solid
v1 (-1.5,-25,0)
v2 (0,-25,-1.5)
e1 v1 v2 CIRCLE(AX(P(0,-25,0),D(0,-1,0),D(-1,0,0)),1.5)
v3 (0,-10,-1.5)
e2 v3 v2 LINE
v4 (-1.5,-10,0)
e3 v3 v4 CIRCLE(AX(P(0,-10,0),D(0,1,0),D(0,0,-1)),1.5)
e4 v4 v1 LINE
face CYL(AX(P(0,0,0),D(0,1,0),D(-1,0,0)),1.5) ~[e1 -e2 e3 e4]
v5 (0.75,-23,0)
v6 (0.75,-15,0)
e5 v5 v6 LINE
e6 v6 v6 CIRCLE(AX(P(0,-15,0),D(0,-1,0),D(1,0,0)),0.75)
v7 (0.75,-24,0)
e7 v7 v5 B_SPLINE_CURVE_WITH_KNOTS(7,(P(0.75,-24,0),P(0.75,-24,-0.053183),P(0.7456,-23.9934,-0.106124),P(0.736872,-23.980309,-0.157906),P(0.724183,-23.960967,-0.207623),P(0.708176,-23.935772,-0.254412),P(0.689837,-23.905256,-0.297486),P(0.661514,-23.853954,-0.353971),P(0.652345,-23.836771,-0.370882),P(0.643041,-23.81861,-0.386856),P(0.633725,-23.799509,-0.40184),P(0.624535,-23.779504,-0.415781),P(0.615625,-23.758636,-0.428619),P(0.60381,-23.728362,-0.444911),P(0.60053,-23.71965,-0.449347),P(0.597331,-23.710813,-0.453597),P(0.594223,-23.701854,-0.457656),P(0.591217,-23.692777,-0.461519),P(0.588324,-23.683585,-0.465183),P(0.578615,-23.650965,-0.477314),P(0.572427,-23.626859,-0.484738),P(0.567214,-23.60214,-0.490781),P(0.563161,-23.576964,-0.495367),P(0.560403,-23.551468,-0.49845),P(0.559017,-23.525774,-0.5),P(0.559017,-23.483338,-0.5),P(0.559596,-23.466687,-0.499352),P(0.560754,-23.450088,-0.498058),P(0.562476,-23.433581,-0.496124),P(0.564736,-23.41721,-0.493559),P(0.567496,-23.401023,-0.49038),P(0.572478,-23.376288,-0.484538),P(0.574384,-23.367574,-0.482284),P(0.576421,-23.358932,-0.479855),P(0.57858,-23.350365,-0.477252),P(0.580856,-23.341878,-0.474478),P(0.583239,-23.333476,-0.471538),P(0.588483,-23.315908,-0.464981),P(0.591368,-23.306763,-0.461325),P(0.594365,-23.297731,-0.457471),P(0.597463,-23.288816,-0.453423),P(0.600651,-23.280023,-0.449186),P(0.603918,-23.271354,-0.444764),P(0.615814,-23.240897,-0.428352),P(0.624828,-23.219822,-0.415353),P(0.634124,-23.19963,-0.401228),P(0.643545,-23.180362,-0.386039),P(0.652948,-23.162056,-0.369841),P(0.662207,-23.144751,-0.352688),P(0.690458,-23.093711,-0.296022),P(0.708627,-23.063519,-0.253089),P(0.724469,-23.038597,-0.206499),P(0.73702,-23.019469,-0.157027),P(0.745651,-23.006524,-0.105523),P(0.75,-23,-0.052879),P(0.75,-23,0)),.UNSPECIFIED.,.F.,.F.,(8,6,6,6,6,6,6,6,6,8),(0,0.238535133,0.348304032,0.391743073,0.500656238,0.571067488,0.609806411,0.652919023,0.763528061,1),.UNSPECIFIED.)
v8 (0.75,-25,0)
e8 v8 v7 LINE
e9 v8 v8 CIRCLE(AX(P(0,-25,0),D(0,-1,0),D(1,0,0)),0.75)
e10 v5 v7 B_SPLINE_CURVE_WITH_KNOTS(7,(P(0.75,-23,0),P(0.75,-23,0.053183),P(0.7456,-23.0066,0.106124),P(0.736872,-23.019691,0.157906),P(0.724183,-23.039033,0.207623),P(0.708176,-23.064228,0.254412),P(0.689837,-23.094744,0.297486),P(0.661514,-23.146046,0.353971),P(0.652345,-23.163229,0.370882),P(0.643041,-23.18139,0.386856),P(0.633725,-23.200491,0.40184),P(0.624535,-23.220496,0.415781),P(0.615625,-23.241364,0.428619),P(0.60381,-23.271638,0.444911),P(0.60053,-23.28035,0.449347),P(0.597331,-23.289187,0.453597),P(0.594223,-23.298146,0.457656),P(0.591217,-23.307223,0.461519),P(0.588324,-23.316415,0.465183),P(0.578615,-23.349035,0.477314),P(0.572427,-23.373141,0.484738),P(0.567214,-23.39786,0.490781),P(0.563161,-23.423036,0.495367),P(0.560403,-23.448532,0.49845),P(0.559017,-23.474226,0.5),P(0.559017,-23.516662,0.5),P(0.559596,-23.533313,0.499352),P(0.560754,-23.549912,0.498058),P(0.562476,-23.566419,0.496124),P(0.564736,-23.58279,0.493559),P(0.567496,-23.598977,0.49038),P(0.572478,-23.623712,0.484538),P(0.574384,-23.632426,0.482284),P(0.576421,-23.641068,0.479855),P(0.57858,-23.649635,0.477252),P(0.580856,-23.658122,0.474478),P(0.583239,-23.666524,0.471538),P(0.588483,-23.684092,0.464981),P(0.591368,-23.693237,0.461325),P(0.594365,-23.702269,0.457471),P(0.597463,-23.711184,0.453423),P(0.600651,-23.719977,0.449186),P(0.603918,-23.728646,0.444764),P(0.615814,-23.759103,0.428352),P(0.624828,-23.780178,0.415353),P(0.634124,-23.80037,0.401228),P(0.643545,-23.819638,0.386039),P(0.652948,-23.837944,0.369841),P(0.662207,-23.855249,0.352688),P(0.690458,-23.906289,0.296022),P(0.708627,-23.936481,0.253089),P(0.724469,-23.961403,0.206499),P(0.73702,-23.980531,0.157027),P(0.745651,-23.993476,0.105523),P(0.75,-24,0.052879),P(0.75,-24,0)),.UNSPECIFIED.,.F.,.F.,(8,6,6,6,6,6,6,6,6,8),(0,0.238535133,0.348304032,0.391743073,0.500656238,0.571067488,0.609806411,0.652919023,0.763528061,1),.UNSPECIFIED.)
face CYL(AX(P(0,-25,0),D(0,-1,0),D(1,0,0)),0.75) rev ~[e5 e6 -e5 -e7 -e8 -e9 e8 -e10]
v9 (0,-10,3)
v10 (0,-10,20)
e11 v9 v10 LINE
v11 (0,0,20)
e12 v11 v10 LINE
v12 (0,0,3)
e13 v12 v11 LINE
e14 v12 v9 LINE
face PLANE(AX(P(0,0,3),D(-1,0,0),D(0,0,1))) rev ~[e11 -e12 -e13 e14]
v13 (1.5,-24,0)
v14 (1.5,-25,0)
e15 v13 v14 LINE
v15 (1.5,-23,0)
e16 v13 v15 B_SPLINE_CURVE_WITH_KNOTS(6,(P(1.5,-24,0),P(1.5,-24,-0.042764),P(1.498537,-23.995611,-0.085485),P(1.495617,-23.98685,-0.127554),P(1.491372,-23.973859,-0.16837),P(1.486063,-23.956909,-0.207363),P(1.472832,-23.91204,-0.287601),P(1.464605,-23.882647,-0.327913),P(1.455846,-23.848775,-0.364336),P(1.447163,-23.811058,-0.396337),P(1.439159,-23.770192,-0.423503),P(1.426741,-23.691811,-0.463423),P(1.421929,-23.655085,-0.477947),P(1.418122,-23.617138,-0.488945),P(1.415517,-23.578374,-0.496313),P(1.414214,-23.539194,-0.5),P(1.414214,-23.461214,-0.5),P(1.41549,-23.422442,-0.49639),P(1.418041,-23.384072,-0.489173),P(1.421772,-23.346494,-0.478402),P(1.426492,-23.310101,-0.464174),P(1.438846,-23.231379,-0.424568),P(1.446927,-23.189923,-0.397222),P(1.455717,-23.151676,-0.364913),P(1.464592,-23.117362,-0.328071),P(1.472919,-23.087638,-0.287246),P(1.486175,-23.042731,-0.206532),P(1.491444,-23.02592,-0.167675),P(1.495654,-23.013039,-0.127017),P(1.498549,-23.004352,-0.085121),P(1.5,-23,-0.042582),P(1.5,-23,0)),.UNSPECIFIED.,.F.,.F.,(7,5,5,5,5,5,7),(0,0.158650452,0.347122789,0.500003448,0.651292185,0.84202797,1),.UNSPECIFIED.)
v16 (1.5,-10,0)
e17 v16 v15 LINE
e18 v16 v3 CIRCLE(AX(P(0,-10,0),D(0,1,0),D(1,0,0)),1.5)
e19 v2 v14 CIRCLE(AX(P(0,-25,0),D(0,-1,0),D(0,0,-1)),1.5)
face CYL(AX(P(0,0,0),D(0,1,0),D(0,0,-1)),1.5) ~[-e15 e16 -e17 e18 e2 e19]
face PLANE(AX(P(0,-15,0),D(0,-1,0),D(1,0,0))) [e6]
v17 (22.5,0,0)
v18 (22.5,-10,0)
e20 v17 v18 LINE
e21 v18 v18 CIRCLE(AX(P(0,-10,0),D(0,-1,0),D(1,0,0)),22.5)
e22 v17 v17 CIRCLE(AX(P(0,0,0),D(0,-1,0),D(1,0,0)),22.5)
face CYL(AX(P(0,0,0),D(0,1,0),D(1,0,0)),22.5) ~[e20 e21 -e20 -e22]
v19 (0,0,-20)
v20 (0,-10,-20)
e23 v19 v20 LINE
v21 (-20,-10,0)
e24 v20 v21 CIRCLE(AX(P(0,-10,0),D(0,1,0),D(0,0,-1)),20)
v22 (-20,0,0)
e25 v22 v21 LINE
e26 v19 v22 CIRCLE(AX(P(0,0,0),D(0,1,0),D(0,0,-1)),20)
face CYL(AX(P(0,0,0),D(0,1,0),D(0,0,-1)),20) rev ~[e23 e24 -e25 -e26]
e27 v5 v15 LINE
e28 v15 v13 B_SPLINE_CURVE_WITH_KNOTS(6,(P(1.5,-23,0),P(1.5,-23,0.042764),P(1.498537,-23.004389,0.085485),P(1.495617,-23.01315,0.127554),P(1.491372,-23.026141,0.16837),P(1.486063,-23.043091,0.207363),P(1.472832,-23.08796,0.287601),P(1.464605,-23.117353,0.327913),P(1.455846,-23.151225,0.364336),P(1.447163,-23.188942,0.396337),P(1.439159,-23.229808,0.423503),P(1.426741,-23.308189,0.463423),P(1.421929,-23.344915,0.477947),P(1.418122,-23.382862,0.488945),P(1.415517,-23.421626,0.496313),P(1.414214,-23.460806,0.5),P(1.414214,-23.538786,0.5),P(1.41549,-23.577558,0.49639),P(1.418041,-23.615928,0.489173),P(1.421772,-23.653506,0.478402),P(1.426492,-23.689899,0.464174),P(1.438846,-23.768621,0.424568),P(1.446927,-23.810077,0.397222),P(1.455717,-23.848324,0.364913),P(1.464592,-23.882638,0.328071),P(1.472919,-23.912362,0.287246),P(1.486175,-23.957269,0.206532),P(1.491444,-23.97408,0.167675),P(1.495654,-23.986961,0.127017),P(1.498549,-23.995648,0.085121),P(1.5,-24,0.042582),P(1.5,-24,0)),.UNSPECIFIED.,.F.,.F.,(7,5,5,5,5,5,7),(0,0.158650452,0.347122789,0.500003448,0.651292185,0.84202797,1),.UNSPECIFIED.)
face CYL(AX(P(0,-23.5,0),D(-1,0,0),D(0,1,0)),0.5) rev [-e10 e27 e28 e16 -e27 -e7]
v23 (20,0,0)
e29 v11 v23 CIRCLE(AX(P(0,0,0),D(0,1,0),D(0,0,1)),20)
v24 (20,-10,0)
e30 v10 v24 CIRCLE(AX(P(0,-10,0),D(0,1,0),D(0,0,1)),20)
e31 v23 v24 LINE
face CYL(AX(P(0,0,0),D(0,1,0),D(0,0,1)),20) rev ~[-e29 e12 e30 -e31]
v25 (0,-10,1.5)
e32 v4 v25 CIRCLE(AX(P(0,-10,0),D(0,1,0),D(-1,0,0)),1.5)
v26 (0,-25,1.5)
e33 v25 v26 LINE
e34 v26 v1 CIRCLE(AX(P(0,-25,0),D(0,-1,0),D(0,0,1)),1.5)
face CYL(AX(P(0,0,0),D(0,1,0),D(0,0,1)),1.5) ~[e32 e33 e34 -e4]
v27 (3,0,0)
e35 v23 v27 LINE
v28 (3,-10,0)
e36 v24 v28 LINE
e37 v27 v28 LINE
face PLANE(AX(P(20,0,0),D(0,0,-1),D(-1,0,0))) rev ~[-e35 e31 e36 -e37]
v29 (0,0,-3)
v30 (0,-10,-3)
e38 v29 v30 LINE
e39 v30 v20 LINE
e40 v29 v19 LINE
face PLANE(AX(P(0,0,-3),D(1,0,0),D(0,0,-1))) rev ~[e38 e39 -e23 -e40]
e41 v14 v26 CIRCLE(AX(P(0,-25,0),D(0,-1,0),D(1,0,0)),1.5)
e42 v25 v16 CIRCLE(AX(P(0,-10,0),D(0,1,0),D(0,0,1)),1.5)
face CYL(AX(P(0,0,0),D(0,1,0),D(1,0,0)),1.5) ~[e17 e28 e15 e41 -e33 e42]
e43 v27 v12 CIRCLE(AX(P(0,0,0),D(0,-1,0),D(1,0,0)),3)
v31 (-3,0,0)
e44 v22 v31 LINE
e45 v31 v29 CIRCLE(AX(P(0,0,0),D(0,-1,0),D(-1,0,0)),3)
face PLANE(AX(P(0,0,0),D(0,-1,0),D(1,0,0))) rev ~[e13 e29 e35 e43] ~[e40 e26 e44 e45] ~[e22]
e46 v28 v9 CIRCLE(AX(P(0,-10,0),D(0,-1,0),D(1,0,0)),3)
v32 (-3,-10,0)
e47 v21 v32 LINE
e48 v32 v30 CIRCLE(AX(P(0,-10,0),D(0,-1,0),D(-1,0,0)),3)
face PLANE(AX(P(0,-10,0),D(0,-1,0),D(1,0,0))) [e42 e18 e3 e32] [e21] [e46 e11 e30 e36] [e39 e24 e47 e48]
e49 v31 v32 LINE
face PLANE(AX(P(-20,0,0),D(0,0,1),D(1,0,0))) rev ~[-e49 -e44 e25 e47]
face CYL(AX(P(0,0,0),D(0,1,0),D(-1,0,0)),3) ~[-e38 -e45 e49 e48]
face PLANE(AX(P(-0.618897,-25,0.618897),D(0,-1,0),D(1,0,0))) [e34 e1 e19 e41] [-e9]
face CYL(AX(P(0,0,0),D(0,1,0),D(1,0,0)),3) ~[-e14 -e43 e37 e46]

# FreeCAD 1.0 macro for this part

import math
import FreeCAD as App
import Part
import Sketcher

V = App.Vector
Q = App.Units.Quantity

doc = App.newDocument("Part")
body = doc.addObject("PartDesign::Body", "Body")

sketch1 = body.newObject("Sketcher::SketchObject", "Sketch")
sketch1.AttachmentSupport = (doc.getObject("XZ_Plane"), [""])
sketch1.MapMode = "FlatFace"
sketch1.addGeometry(Part.Circle(V(0, 0, 0), V(0, 0, 1), 22.5), False)
sketch1.addGeometry(Part.ArcOfCircle(Part.Circle(V(0, 0, 0), V(0, 0, 1), 20), math.radians(180), math.radians(270)), False)
sketch1.addGeometry(Part.LineSegment(V(-20, 0, 0), V(-3, 0, 0)), False)
sketch1.addGeometry(Part.ArcOfCircle(Part.Circle(V(0, 0, 0), V(0, 0, 1), 3), math.radians(180), math.radians(270)), False)
sketch1.addGeometry(Part.LineSegment(V(0, -3, 0), V(0, -20, 0)), False)
sketch1.addGeometry(Part.ArcOfCircle(Part.Circle(V(0, 0, 0), V(0, 0, 1), 3), math.radians(0), math.radians(90)), False)
sketch1.addGeometry(Part.LineSegment(V(0, 3, 0), V(0, 20, 0)), False)
sketch1.addGeometry(Part.ArcOfCircle(Part.Circle(V(0, 0, 0), V(0, 0, 1), 20), math.radians(0), math.radians(90)), False)
sketch1.addGeometry(Part.LineSegment(V(20, 0, 0), V(3, 0, 0)), False)
sketch1.addGeometry(Part.ArcOfCircle(Part.Circle(V(0, 0, 0), V(0, 0, 1), 1.5), math.radians(180), math.radians(270)), False)
sketch1.addGeometry(Part.ArcOfCircle(Part.Circle(V(0, 0, 0), V(0, 0, 1), 1.5), math.radians(90), math.radians(180)), False)
sketch1.addGeometry(Part.ArcOfCircle(Part.Circle(V(0, 0, 0), V(0, 0, 1), 1.5), math.radians(0), math.radians(90)), False)
sketch1.addGeometry(Part.ArcOfCircle(Part.Circle(V(0, 0, 0), V(0, 0, 1), 1.5), math.radians(-90), math.radians(0)), False)
sketch1.addConstraint(Sketcher.Constraint("Coincident", 1, 1, 2, 1))
sketch1.addConstraint(Sketcher.Constraint("Coincident", 2, 2, 3, 1))
sketch1.addConstraint(Sketcher.Constraint("Coincident", 3, 2, 4, 1))
sketch1.addConstraint(Sketcher.Constraint("Coincident", 4, 2, 1, 2))
sketch1.addConstraint(Sketcher.Constraint("Coincident", 5, 2, 6, 1))
sketch1.addConstraint(Sketcher.Constraint("Coincident", 6, 2, 7, 2))
sketch1.addConstraint(Sketcher.Constraint("Coincident", 7, 1, 8, 1))
sketch1.addConstraint(Sketcher.Constraint("Coincident", 8, 2, 5, 1))
sketch1.addConstraint(Sketcher.Constraint("Tangent", 9, 1, 10, 2))
sketch1.addConstraint(Sketcher.Constraint("Tangent", 10, 1, 11, 2))
sketch1.addConstraint(Sketcher.Constraint("Tangent", 11, 1, 12, 2))
sketch1.addConstraint(Sketcher.Constraint("Tangent", 12, 1, 9, 2))
sketch1.addConstraint(Sketcher.Constraint("Horizontal", 2))
sketch1.addConstraint(Sketcher.Constraint("Vertical", 4))
sketch1.addConstraint(Sketcher.Constraint("Vertical", 6))
sketch1.addConstraint(Sketcher.Constraint("Horizontal", 8))
sketch1.addConstraint(Sketcher.Constraint("Coincident", 0, 3, -1, 1))
sketch1.addConstraint(Sketcher.Constraint("Coincident", 1, 3, -1, 1))
sketch1.addConstraint(Sketcher.Constraint("Coincident", 3, 3, -1, 1))
sketch1.addConstraint(Sketcher.Constraint("Coincident", 5, 3, -1, 1))
sketch1.addConstraint(Sketcher.Constraint("Coincident", 7, 3, -1, 1))
sketch1.addConstraint(Sketcher.Constraint("Coincident", 9, 3, -1, 1))
sketch1.addConstraint(Sketcher.Constraint("Equal", 3, 5))
sketch1.addConstraint(Sketcher.Constraint("Equal", 1, 7))
sketch1.addConstraint(Sketcher.Constraint("Equal", 9, 10))
sketch1.addConstraint(Sketcher.Constraint("PointOnObject", 1, 1, -1))
sketch1.addConstraint(Sketcher.Constraint("PointOnObject", 3, 2, -2))
sketch1.addConstraint(Sketcher.Constraint("PointOnObject", 5, 2, -2))
sketch1.addConstraint(Sketcher.Constraint("PointOnObject", 7, 1, -1))
sketch1.addConstraint(Sketcher.Constraint("PointOnObject", 9, 1, -1))
sketch1.addConstraint(Sketcher.Constraint("PointOnObject", 10, 1, -2))
sketch1.addConstraint(Sketcher.Constraint("PointOnObject", 11, 1, -1))
sketch1.addConstraint(Sketcher.Constraint("PointOnObject", 12, 1, -2))
sketch1.addConstraint(Sketcher.Constraint("Diameter", 0, Q("45 mm")))
sketch1.addConstraint(Sketcher.Constraint("Radius", 1, Q("20 mm")))
sketch1.addConstraint(Sketcher.Constraint("Radius", 3, Q("3 mm")))
sketch1.addConstraint(Sketcher.Constraint("Radius", 9, Q("1.5 mm")))
pad1 = body.newObject("PartDesign::Pad", "Pad")
pad1.Profile = sketch1
pad1.Length = 10

sketch2 = body.newObject("Sketcher::SketchObject", "Sketch001")
sketch2.AttachmentSupport = (doc.getObject("XZ_Plane"), [""])
sketch2.MapMode = "FlatFace"
sketch2.addGeometry(Part.ArcOfCircle(Part.Circle(V(0, 0, 0), V(0, 0, 1), 1.5), math.radians(90), math.radians(180)), False)
sketch2.addGeometry(Part.ArcOfCircle(Part.Circle(V(0, 0, 0), V(0, 0, 1), 1.5), math.radians(180), math.radians(270)), False)
sketch2.addGeometry(Part.ArcOfCircle(Part.Circle(V(0, 0, 0), V(0, 0, 1), 1.5), math.radians(-90), math.radians(0)), False)
sketch2.addGeometry(Part.ArcOfCircle(Part.Circle(V(0, 0, 0), V(0, 0, 1), 1.5), math.radians(0), math.radians(90)), False)
sketch2.addConstraint(Sketcher.Constraint("Tangent", 0, 2, 1, 1))
sketch2.addConstraint(Sketcher.Constraint("Tangent", 1, 2, 2, 1))
sketch2.addConstraint(Sketcher.Constraint("Tangent", 2, 2, 3, 1))
sketch2.addConstraint(Sketcher.Constraint("Tangent", 3, 2, 0, 1))
sketch2.addConstraint(Sketcher.Constraint("Coincident", 0, 3, -1, 1))
sketch2.addConstraint(Sketcher.Constraint("Equal", 0, 1))
sketch2.addConstraint(Sketcher.Constraint("PointOnObject", 0, 2, -1))
sketch2.addConstraint(Sketcher.Constraint("PointOnObject", 1, 2, -2))
sketch2.addConstraint(Sketcher.Constraint("PointOnObject", 2, 2, -1))
sketch2.addConstraint(Sketcher.Constraint("PointOnObject", 3, 2, -2))
sketch2.addConstraint(Sketcher.Constraint("Radius", 0, Q("1.5 mm")))
pad2 = body.newObject("PartDesign::Pad", "Pad001")
pad2.Profile = sketch2
pad2.Length = 25

sketch3 = body.newObject("Sketcher::SketchObject", "Sketch002")
sketch3.AttachmentSupport = (doc.getObject("YZ_Plane"), [""])
sketch3.MapMode = "FlatFace"
sketch3.addGeometry(Part.Circle(V(-23.5, 0, 0), V(0, 0, 1), 0.5), False)
sketch3.addConstraint(Sketcher.Constraint("PointOnObject", 0, 3, -1))
sketch3.addConstraint(Sketcher.Constraint("Diameter", 0, Q("1 mm")))
sketch3.addConstraint(Sketcher.Constraint("DistanceX", 0, 3, -1, 1, Q("23.5 mm")))
pocket1 = body.newObject("PartDesign::Pocket", "Pocket")
pocket1.Profile = sketch3
pocket1.Length = 2.5
pocket1.Reversed = True

sketch4 = body.newObject("Sketcher::SketchObject", "Sketch003")
sketch4.AttachmentSupport = (doc.getObject("XZ_Plane"), [""])
sketch4.MapMode = "FlatFace"
sketch4.AttachmentOffset = App.Placement(V(0, 0, 25), App.Rotation())
sketch4.addGeometry(Part.Circle(V(0, 0, 0), V(0, 0, 1), 0.8), False)
sketch4.addConstraint(Sketcher.Constraint("Coincident", 0, 3, -1, 1))
sketch4.addConstraint(Sketcher.Constraint("Diameter", 0, Q("1.5 mm")))
pocket2 = body.newObject("PartDesign::Pocket", "Pocket001")
pocket2.Profile = sketch4
pocket2.Length = 10

doc.recompute()
